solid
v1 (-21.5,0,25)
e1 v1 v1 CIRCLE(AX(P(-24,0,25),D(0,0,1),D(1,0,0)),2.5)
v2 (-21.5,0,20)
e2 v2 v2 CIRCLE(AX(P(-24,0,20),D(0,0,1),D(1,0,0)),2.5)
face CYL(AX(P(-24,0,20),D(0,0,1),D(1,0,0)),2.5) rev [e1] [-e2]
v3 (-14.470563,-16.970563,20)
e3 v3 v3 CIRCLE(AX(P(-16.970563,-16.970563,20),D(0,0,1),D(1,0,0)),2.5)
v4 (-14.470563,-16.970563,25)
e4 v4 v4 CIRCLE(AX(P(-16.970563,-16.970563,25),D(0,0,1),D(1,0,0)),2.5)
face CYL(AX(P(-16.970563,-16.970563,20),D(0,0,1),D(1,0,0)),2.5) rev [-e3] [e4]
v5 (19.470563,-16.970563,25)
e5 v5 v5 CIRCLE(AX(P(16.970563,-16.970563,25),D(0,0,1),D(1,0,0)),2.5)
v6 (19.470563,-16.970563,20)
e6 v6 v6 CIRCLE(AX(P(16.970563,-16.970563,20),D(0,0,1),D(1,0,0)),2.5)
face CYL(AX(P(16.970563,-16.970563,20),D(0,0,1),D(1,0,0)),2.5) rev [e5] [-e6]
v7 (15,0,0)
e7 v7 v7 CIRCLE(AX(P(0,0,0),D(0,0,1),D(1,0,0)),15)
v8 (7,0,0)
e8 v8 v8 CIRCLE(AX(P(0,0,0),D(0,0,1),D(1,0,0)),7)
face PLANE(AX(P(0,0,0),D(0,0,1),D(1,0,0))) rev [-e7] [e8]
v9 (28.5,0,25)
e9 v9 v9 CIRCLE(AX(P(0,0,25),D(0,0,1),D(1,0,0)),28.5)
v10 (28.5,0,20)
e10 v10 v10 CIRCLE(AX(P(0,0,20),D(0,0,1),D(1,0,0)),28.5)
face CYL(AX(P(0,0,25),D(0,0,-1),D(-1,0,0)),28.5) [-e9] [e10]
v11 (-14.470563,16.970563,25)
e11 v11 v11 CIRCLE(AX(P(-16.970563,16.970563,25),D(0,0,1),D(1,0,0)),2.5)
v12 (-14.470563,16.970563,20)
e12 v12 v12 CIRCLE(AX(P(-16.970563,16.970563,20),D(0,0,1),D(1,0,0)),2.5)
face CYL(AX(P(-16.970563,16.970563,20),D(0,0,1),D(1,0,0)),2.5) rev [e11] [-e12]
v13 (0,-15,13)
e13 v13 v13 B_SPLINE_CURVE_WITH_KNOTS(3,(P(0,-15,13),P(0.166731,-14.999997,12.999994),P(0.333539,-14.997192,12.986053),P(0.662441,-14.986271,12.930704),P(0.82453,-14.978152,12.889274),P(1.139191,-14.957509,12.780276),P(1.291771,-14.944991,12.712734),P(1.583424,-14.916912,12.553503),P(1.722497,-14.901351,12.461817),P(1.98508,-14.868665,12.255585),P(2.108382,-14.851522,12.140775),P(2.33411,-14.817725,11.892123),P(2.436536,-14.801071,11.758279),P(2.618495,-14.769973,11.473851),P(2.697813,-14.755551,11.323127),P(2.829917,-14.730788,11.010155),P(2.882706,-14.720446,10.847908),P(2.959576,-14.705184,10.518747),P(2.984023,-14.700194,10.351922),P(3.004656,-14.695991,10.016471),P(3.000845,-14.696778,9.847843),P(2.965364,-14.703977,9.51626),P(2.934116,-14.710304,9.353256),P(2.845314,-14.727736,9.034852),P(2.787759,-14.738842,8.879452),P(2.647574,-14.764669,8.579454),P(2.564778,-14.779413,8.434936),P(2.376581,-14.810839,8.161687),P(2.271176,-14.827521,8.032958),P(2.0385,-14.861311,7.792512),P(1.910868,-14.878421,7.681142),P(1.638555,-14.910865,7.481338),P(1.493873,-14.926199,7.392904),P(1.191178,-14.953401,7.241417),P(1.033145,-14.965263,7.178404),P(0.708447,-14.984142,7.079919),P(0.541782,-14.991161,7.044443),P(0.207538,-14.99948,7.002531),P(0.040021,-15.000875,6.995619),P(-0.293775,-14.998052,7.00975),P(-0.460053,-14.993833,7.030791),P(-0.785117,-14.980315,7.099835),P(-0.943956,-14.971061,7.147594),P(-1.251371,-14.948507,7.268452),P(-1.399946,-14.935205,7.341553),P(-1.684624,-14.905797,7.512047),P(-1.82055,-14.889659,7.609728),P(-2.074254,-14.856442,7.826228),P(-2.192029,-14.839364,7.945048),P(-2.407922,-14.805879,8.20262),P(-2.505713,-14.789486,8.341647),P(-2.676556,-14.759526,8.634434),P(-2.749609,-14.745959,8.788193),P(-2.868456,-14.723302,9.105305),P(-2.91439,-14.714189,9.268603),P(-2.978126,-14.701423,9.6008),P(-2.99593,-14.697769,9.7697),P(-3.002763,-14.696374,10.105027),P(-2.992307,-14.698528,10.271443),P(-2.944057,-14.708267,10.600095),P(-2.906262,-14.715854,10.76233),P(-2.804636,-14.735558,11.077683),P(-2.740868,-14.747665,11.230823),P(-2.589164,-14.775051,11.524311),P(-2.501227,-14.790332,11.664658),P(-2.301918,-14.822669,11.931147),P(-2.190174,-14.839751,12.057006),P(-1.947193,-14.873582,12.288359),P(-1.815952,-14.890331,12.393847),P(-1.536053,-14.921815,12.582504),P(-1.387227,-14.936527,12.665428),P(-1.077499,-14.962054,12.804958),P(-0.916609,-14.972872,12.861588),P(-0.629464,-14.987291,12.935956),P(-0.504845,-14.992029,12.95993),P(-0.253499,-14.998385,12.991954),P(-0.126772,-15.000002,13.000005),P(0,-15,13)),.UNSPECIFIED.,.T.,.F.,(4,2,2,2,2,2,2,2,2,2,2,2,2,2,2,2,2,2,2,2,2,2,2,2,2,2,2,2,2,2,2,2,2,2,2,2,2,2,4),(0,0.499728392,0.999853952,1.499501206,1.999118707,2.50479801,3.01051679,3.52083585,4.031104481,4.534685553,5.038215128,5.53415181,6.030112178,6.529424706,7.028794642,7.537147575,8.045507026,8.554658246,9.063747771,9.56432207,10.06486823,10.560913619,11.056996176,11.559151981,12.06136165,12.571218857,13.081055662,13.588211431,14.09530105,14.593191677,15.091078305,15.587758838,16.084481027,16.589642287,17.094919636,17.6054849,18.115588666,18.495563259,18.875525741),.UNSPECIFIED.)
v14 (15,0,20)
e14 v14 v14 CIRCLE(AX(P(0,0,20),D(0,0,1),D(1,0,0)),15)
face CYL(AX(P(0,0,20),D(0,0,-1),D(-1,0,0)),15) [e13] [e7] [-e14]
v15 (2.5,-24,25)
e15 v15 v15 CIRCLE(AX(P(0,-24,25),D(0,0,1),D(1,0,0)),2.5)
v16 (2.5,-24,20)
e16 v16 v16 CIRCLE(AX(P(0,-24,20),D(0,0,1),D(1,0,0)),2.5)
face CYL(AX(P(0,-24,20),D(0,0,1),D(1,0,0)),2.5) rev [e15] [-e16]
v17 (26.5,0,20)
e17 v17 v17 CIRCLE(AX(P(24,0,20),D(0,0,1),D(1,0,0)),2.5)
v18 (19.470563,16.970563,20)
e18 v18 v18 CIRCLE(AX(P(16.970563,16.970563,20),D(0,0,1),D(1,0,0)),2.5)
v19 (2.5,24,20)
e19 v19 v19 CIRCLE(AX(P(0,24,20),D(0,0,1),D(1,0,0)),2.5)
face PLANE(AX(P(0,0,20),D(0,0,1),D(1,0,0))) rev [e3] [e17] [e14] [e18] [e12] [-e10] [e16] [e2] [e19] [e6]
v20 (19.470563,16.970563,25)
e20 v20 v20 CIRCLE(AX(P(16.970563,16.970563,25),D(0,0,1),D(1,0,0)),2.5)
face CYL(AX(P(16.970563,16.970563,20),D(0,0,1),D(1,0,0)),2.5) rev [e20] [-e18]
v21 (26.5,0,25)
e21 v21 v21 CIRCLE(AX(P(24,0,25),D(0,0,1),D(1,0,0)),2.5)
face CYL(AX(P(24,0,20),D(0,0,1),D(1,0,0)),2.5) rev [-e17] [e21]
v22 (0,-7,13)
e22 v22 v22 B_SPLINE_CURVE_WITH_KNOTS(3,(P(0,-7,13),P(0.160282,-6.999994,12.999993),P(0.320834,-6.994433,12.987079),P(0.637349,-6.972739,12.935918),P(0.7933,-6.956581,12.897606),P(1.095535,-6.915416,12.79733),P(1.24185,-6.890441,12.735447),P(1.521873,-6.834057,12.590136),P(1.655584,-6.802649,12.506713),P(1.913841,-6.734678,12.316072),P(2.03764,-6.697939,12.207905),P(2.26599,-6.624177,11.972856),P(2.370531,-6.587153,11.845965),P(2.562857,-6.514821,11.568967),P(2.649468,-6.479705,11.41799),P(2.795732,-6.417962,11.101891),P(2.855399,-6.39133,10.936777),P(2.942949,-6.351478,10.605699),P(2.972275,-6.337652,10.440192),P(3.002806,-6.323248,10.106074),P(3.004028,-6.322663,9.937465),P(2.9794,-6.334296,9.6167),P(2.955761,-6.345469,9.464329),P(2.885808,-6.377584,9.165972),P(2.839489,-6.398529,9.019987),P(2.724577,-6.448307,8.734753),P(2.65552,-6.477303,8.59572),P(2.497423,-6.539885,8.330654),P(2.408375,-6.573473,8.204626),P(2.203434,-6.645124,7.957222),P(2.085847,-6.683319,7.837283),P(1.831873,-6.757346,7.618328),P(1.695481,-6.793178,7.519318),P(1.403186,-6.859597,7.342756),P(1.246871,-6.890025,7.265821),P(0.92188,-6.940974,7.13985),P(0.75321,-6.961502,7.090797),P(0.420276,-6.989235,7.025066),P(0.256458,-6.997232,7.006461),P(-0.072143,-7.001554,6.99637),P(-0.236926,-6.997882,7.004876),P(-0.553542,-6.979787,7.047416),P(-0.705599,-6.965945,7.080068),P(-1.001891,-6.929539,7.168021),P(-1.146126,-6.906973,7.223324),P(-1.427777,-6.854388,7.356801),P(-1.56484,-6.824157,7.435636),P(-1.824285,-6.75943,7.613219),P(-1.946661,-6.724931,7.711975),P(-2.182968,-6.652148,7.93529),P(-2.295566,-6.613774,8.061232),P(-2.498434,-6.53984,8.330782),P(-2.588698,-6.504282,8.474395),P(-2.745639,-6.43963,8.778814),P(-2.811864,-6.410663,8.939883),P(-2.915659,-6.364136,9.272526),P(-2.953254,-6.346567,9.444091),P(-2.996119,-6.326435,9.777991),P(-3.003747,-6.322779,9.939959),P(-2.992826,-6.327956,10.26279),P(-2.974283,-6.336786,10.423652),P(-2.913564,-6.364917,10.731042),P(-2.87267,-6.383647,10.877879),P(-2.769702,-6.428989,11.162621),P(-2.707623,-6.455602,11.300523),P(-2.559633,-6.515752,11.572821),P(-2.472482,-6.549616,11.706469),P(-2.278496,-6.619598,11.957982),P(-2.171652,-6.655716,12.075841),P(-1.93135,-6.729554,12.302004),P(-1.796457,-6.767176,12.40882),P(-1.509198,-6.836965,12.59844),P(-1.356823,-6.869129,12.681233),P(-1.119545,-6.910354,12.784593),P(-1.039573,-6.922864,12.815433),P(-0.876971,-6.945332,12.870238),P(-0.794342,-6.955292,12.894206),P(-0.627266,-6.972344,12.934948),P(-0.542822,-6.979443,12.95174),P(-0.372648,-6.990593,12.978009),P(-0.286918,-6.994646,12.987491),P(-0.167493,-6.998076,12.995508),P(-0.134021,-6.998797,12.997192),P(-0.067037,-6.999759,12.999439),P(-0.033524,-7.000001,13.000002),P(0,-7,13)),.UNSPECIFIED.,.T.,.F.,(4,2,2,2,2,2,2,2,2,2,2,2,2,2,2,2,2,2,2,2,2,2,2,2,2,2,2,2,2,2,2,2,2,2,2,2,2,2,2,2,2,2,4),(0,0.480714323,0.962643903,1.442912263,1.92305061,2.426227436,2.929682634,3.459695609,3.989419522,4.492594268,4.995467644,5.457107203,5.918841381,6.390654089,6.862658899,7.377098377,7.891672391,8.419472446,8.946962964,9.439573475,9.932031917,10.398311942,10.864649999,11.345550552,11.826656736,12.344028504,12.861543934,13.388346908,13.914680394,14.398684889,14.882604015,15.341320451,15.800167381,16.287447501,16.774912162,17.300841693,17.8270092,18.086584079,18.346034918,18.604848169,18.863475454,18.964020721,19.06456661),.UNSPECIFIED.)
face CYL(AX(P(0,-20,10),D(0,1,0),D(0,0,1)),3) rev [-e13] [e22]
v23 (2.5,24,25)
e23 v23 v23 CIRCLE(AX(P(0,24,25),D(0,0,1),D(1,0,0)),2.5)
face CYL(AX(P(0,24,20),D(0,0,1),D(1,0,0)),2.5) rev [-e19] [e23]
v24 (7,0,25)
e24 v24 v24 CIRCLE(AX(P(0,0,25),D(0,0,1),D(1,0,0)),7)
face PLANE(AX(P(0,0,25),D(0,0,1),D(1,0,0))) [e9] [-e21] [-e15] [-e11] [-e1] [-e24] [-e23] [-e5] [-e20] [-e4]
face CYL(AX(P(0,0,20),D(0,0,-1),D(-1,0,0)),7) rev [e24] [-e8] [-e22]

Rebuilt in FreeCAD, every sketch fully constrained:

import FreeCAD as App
import Part
import Sketcher
Q = App.Units.Quantity

doc = App.newDocument("Part")
params = doc.addObject("Spreadsheet::Sheet", "Params")
for row, (alias, value) in enumerate([
    ("sketch1_diameter", "30 mm"),
    ("sketch1_diameter2", "14 mm"),
    ("pad1_length", "20 mm"),
    ("sketch2_diameter", "57 mm"),
    ("sketch2_diameter2", "14 mm"),
    ("pad2_length", "5 mm"),
    ("sketch3_diameter", "5 mm"),
    ("pocket1_length", "5 mm"),
    ("sketch4_diameter", "6 mm"),
    ("pocket2_length", "20 mm"),
], start=1):
    params.set(f"A{row}", alias)
    params.set(f"B{row}", "=" + value)
    params.setAlias(f"B{row}", alias)

body = doc.addObject("PartDesign::Body", "Body")

sketch1 = body.newObject("Sketcher::SketchObject", "Sketch")
sketch1.AttachmentSupport = (doc.getObject("XY_Plane"), [""])
sketch1.MapMode = "FlatFace"
sketch1.addGeometry([
    Part.Circle(App.Vector(0, 0, 0), App.Vector(0, 0, 1), 15),
    Part.Circle(App.Vector(0, 0, 0), App.Vector(0, 0, 1), 7),
], False)
sketch1.addConstraint([
    Sketcher.Constraint("Coincident", 0, 3, -1, 1),
    Sketcher.Constraint("Coincident", 1, 3, -1, 1),
    Sketcher.Constraint("Diameter", 0, Q("30 mm")),
    Sketcher.Constraint("Diameter", 1, Q("14 mm")),
])
sketch1.setExpression("Constraints[2]", "Params.sketch1_diameter")
sketch1.setExpression("Constraints[3]", "Params.sketch1_diameter2")
pad1 = body.newObject("PartDesign::Pad", "Pad")
pad1.Profile = sketch1
pad1.setExpression("Length", "Params.pad1_length")

sketch2 = body.newObject("Sketcher::SketchObject", "Sketch001")
sketch2.AttachmentSupport = (doc.getObject("XY_Plane"), [""])
sketch2.MapMode = "FlatFace"
sketch2.AttachmentOffset = App.Placement(App.Vector(0, 0, 20), App.Rotation())
sketch2.addGeometry([
    Part.Circle(App.Vector(0, 0, 0), App.Vector(0, 0, 1), 28.5),
    Part.Circle(App.Vector(0, 0, 0), App.Vector(0, 0, 1), 7),
], False)
sketch2.addConstraint([
    Sketcher.Constraint("Coincident", 0, 3, -1, 1),
    Sketcher.Constraint("Coincident", 1, 3, -1, 1),
    Sketcher.Constraint("Diameter", 0, Q("57 mm")),
    Sketcher.Constraint("Diameter", 1, Q("14 mm")),
])
sketch2.setExpression("Constraints[2]", "Params.sketch2_diameter")
sketch2.setExpression("Constraints[3]", "Params.sketch2_diameter2")
pad2 = body.newObject("PartDesign::Pad", "Pad001")
pad2.Profile = sketch2
pad2.setExpression("Length", "Params.pad2_length")

sketch3 = body.newObject("Sketcher::SketchObject", "Sketch002")
sketch3.AttachmentSupport = (doc.getObject("XY_Plane"), [""])
sketch3.MapMode = "FlatFace"
sketch3.AttachmentOffset = App.Placement(App.Vector(0, 0, 25), App.Rotation())
sketch3.addGeometry([
    Part.Circle(App.Vector(0, -24, 0), App.Vector(0, 0, 1), 2.5),
    Part.Circle(App.Vector(-16.970563, -16.970563, 0), App.Vector(0, 0, 1), 2.5),
    Part.Circle(App.Vector(-24, 0, 0), App.Vector(0, 0, 1), 2.5),
    Part.Circle(App.Vector(-16.970563, 16.970563, 0), App.Vector(0, 0, 1), 2.5),
    Part.Circle(App.Vector(0, 24, 0), App.Vector(0, 0, 1), 2.5),
    Part.Circle(App.Vector(16.970563, 16.970563, 0), App.Vector(0, 0, 1), 2.5),
    Part.Circle(App.Vector(24, 0, 0), App.Vector(0, 0, 1), 2.5),
    Part.Circle(App.Vector(16.970563, -16.970563, 0), App.Vector(0, 0, 1), 2.5),
], False)
sketch3.addConstraint([
    Sketcher.Constraint("Equal", 0, 1),
    Sketcher.Constraint("Equal", 1, 2),
    Sketcher.Constraint("Equal", 2, 3),
    Sketcher.Constraint("Equal", 3, 4),
    Sketcher.Constraint("Equal", 4, 5),
    Sketcher.Constraint("Equal", 5, 6),
    Sketcher.Constraint("Equal", 6, 7),
    Sketcher.Constraint("Symmetric", 0, 3, 4, 3, -1, 1),
    Sketcher.Constraint("Symmetric", 1, 3, 5, 3, -1, 1),
    Sketcher.Constraint("Symmetric", 2, 3, 6, 3, -1, 1),
    Sketcher.Constraint("Symmetric", 3, 3, 7, 3, -1, 1),
    Sketcher.Constraint("Symmetric", 3, 3, 5, 3, -2),
    Sketcher.Constraint("PointOnObject", 0, 3, -2),
    Sketcher.Constraint("PointOnObject", 2, 3, -1),
    Sketcher.Constraint("Diameter", 0, Q("5 mm")),
    Sketcher.Constraint("DistanceY", 0, 3, -1, 1, Q("24 mm")),
    Sketcher.Constraint("DistanceX", 2, 3, -1, 1, Q("24 mm")),
    Sketcher.Constraint("DistanceX", 1, 3, -1, 1, Q("16.970563 mm")),
    Sketcher.Constraint("DistanceY", 1, 3, -1, 1, Q("16.970563 mm")),
])
sketch3.setExpression("Constraints[14]", "Params.sketch3_diameter")
pocket1 = body.newObject("PartDesign::Pocket", "Pocket")
pocket1.Profile = sketch3
pocket1.setExpression("Length", "Params.pocket1_length")

sketch4 = body.newObject("Sketcher::SketchObject", "Sketch003")
sketch4.AttachmentSupport = (doc.getObject("XZ_Plane"), [""])
sketch4.MapMode = "FlatFace"
sketch4.addGeometry(Part.Circle(App.Vector(0, 10, 0), App.Vector(0, 0, 1), 3), False)
sketch4.addConstraint([
    Sketcher.Constraint("PointOnObject", 0, 3, -2),
    Sketcher.Constraint("Diameter", 0, Q("6 mm")),
    Sketcher.Constraint("DistanceY", -1, 1, 0, 3, Q("10 mm")),
])
sketch4.setExpression("Constraints[1]", "Params.sketch4_diameter")
pocket2 = body.newObject("PartDesign::Pocket", "Pocket001")
pocket2.Profile = sketch4
pocket2.setExpression("Length", "Params.pocket2_length")
pocket2.Reversed = True

doc.recompute()
